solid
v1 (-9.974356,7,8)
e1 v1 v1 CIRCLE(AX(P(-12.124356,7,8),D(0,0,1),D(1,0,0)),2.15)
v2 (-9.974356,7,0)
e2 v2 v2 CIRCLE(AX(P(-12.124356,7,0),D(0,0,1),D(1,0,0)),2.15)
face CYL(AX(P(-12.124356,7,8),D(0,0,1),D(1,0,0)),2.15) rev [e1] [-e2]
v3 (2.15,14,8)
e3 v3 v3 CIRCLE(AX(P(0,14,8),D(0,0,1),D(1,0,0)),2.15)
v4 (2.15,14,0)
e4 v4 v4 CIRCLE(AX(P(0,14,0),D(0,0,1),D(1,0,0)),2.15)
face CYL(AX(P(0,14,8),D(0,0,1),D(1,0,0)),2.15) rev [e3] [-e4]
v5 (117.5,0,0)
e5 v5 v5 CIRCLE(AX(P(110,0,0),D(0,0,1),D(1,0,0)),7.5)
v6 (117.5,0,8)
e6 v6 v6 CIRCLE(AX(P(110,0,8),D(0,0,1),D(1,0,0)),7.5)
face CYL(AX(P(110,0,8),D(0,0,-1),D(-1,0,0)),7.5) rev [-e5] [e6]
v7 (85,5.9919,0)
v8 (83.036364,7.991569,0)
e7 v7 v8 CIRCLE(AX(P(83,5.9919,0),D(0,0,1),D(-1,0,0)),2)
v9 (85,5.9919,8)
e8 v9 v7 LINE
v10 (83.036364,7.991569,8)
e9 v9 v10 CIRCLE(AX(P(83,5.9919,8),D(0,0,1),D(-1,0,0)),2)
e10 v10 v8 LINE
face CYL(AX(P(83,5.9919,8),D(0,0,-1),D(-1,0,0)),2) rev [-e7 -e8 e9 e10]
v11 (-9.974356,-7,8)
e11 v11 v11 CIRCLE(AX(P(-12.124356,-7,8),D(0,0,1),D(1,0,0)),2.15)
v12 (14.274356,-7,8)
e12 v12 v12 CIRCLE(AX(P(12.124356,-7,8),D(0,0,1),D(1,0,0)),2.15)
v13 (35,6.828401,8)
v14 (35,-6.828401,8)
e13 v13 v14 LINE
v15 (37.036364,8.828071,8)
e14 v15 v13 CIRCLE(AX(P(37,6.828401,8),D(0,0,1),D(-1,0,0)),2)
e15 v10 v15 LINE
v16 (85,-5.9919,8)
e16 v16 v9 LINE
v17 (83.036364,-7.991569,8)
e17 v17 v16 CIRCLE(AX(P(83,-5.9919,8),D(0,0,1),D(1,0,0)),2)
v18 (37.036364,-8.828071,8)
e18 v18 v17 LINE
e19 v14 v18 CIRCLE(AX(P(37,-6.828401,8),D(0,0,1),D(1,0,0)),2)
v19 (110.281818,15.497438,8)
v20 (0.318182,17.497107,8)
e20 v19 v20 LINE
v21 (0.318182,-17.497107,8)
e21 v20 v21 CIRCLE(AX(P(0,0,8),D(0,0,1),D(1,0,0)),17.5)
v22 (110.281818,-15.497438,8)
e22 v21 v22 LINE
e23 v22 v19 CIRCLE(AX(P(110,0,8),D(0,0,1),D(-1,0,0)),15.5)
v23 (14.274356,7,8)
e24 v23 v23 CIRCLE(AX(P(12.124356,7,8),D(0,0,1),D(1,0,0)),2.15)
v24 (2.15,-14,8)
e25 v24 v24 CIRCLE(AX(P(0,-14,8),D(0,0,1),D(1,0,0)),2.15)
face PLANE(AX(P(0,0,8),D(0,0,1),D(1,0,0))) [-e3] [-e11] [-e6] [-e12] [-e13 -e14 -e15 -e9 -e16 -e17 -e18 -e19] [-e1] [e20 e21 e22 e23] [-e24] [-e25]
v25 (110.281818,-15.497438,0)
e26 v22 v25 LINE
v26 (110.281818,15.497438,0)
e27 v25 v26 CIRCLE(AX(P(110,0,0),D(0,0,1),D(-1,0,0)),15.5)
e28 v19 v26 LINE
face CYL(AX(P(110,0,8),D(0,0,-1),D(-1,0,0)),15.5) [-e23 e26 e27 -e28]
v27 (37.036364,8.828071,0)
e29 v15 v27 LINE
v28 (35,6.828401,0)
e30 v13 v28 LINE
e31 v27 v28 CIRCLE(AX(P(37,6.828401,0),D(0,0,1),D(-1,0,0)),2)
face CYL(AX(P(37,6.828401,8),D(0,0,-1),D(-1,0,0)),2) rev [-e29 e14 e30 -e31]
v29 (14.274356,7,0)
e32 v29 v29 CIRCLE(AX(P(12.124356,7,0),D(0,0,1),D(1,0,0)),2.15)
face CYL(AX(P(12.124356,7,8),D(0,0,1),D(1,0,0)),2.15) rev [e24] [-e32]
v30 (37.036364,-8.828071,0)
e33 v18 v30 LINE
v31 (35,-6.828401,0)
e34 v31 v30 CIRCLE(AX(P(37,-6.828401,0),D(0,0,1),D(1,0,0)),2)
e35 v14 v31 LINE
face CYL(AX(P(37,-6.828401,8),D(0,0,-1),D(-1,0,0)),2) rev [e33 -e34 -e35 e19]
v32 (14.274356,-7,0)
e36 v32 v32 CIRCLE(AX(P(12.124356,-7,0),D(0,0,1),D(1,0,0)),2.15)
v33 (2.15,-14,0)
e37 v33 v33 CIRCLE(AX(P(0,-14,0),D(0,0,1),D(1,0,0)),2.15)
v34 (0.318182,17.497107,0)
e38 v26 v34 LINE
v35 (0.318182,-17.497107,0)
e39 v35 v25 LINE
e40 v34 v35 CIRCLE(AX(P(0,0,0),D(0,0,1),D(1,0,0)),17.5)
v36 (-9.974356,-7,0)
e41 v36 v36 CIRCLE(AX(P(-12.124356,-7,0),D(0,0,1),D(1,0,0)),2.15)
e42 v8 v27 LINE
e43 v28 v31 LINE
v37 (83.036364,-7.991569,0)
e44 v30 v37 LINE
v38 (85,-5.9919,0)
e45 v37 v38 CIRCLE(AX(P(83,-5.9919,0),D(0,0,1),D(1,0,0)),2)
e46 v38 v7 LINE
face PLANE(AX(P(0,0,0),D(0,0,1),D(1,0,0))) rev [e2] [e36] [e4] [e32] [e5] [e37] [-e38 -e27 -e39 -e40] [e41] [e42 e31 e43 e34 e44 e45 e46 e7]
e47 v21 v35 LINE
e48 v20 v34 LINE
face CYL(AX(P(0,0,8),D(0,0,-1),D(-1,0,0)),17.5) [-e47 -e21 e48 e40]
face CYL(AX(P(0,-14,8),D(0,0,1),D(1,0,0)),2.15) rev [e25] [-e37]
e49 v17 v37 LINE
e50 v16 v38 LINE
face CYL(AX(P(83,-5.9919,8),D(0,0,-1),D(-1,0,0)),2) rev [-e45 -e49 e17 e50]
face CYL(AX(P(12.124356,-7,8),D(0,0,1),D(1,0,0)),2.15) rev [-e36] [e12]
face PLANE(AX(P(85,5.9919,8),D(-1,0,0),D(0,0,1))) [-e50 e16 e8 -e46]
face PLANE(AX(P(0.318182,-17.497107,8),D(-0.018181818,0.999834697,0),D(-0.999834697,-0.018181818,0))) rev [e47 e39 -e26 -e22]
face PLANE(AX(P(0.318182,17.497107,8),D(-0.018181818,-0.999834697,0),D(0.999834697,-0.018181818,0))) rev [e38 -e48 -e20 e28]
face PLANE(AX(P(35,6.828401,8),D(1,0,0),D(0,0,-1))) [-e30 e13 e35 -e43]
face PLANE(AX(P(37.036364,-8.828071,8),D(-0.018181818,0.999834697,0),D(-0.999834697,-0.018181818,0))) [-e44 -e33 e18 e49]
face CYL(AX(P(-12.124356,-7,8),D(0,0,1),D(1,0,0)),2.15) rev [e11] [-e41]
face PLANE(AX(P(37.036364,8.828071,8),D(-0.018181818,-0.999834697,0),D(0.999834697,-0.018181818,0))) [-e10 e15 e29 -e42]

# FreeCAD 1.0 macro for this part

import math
import FreeCAD as App
import Part
import Sketcher
from FreeCAD import Vector

doc = App.newDocument("Part")
body = doc.addObject("PartDesign::Body", "Body")

# Sketch on XY plane
sketch1 = body.newObject("Sketcher::SketchObject", "Sketch")
sketch1.AttachmentSupport = (doc.getObject("XY_Plane"), [""])
sketch1.MapMode = "FlatFace"
sketch1.addGeometry(Part.LineSegment(Vector(110.281818, 15.497438, 0), Vector(0.318182, 17.497107, 0)), False)
sketch1.addGeometry(Part.ArcOfCircle(Part.Circle(Vector(0, 0, 0), Vector(0, 0, 1), 17.5), math.radians(88.958201), math.radians(271.041799)), False)
sketch1.addGeometry(Part.LineSegment(Vector(0.318182, -17.497107, 0), Vector(110.281818, -15.497438, 0)), False)
sketch1.addGeometry(Part.ArcOfCircle(Part.Circle(Vector(110, 0, 0), Vector(0, 0, 1), 15.5), math.radians(-88.958201), math.radians(88.958201)), False)
sketch1.addGeometry(Part.Circle(Vector(110, 0, 0), Vector(0, 0, 1), 7.5), False)
sketch1.addGeometry(Part.ArcOfCircle(Part.Circle(Vector(37, 6.828401, 0), Vector(0, 0, 1), 2), math.radians(88.958201), math.radians(180)), False)
sketch1.addGeometry(Part.LineSegment(Vector(37.036364, 8.828071, 0), Vector(83.036364, 7.991569, 0)), False)
sketch1.addGeometry(Part.ArcOfCircle(Part.Circle(Vector(83, 5.9919, 0), Vector(0, 0, 1), 2), math.radians(0), math.radians(88.958201)), False)
sketch1.addGeometry(Part.LineSegment(Vector(85, 5.9919, 0), Vector(85, -5.9919, 0)), False)
sketch1.addGeometry(Part.ArcOfCircle(Part.Circle(Vector(83, -5.9919, 0), Vector(0, 0, 1), 2), math.radians(-88.958201), math.radians(0)), False)
sketch1.addGeometry(Part.LineSegment(Vector(83.036364, -7.991569, 0), Vector(37.036364, -8.828071, 0)), False)
sketch1.addGeometry(Part.ArcOfCircle(Part.Circle(Vector(37, -6.828401, 0), Vector(0, 0, 1), 2), math.radians(-180), math.radians(-88.958201)), False)
sketch1.addGeometry(Part.LineSegment(Vector(35, -6.828401, 0), Vector(35, 6.828401, 0)), False)
sketch1.addConstraint(Sketcher.Constraint("Tangent", 0, 2, 1, 1))
sketch1.addConstraint(Sketcher.Constraint("Tangent", 1, 2, 2, 1))
sketch1.addConstraint(Sketcher.Constraint("Tangent", 2, 2, 3, 1))
sketch1.addConstraint(Sketcher.Constraint("Tangent", 3, 2, 0, 1))
sketch1.addConstraint(Sketcher.Constraint("Tangent", 5, 1, 6, 1))
sketch1.addConstraint(Sketcher.Constraint("Tangent", 6, 2, 7, 2))
sketch1.addConstraint(Sketcher.Constraint("Tangent", 7, 1, 8, 1))
sketch1.addConstraint(Sketcher.Constraint("Tangent", 8, 2, 9, 2))
sketch1.addConstraint(Sketcher.Constraint("Tangent", 9, 1, 10, 1))
sketch1.addConstraint(Sketcher.Constraint("Tangent", 10, 2, 11, 2))
sketch1.addConstraint(Sketcher.Constraint("Tangent", 11, 1, 12, 1))
sketch1.addConstraint(Sketcher.Constraint("Tangent", 12, 2, 5, 2))
sketch1.addConstraint(Sketcher.Constraint("Vertical", 8))
sketch1.addConstraint(Sketcher.Constraint("Vertical", 12))
sketch1.addConstraint(Sketcher.Constraint("Coincident", 1, 3, -1, 1))
sketch1.addConstraint(Sketcher.Constraint("Coincident", 4, 3, 3, 3))
sketch1.addConstraint(Sketcher.Constraint("Equal", 5, 7))
sketch1.addConstraint(Sketcher.Constraint("Equal", 7, 9))
sketch1.addConstraint(Sketcher.Constraint("Equal", 9, 11))
sketch1.addConstraint(Sketcher.Constraint("Symmetric", 6, 2, 9, 1, -1))
sketch1.addConstraint(Sketcher.Constraint("PointOnObject", 3, 3, -1))
sketch1.addConstraint(Sketcher.Constraint("Parallel", 0, 6))
sketch1.addConstraint(Sketcher.Constraint("Diameter", 4, 15.0))
sketch1.addConstraint(Sketcher.Constraint("Radius", 5, 2.0))
sketch1.addConstraint(Sketcher.Constraint("Radius", 1, 17.5))
sketch1.addConstraint(Sketcher.Constraint("Radius", 3, 15.5))
sketch1.addConstraint(Sketcher.Constraint("DistanceX", -1, 1, 3, 3, 110.0))
sketch1.addConstraint(Sketcher.Constraint("DistanceX", -1, 1, 5, 3, 37.0))
sketch1.addConstraint(Sketcher.Constraint("DistanceX", -1, 1, 7, 3, 83.0))
sketch1.addConstraint(Sketcher.Constraint("DistanceY", 8, 2, 8, 1, 11.983799))
pad1 = body.newObject("PartDesign::Pad", "Pad")
pad1.Profile = sketch1
pad1.Length = 8

# Sketch on XY plane
sketch2 = body.newObject("Sketcher::SketchObject", "Sketch001")
sketch2.AttachmentSupport = (doc.getObject("XY_Plane"), [""])
sketch2.MapMode = "FlatFace"
sketch2.AttachmentOffset = App.Placement(Vector(0, 0, 8), App.Rotation())
sketch2.addGeometry(Part.Circle(Vector(12.124356, 7, 0), Vector(0, 0, 1), 2.15), False)
sketch2.addGeometry(Part.Circle(Vector(0, 14, 0), Vector(0, 0, 1), 2.15), False)
sketch2.addGeometry(Part.Circle(Vector(-12.124356, 7, 0), Vector(0, 0, 1), 2.15), False)
sketch2.addGeometry(Part.Circle(Vector(-12.124356, -7, 0), Vector(0, 0, 1), 2.15), False)
sketch2.addGeometry(Part.Circle(Vector(0, -14, 0), Vector(0, 0, 1), 2.15), False)
sketch2.addGeometry(Part.Circle(Vector(12.124356, -7, 0), Vector(0, 0, 1), 2.15), False)
sketch2.addConstraint(Sketcher.Constraint("Equal", 0, 1))
sketch2.addConstraint(Sketcher.Constraint("Equal", 1, 2))
sketch2.addConstraint(Sketcher.Constraint("Equal", 2, 3))
sketch2.addConstraint(Sketcher.Constraint("Equal", 3, 4))
sketch2.addConstraint(Sketcher.Constraint("Equal", 4, 5))
sketch2.addConstraint(Sketcher.Constraint("Symmetric", 0, 3, 3, 3, -1, 1))
sketch2.addConstraint(Sketcher.Constraint("Symmetric", 1, 3, 4, 3, -1, 1))
sketch2.addConstraint(Sketcher.Constraint("Symmetric", 2, 3, 5, 3, -1, 1))
sketch2.addConstraint(Sketcher.Constraint("Symmetric", 0, 3, 2, 3, -2))
sketch2.addConstraint(Sketcher.Constraint("PointOnObject", 1, 3, -2))
sketch2.addConstraint(Sketcher.Constraint("Diameter", 0, 4.3))
sketch2.addConstraint(Sketcher.Constraint("DistanceY", -1, 1, 0, 3, 7.0))
sketch2.addConstraint(Sketcher.Constraint("DistanceY", -1, 1, 1, 3, 14.0))
sketch2.addConstraint(Sketcher.Constraint("DistanceX", 2, 3, 0, 3, 24.248711))
doc.recompute()
hole = body.newObject("PartDesign::Hole", "Hole")
hole.Profile = sketch2
hole.ThreadType = "None"
hole.Diameter = 4.3
hole.DepthType = "Dimension"
hole.Depth = 25
hole.DrillPoint = "Angled"
hole.DrillPointAngle = 118

doc.recompute()
